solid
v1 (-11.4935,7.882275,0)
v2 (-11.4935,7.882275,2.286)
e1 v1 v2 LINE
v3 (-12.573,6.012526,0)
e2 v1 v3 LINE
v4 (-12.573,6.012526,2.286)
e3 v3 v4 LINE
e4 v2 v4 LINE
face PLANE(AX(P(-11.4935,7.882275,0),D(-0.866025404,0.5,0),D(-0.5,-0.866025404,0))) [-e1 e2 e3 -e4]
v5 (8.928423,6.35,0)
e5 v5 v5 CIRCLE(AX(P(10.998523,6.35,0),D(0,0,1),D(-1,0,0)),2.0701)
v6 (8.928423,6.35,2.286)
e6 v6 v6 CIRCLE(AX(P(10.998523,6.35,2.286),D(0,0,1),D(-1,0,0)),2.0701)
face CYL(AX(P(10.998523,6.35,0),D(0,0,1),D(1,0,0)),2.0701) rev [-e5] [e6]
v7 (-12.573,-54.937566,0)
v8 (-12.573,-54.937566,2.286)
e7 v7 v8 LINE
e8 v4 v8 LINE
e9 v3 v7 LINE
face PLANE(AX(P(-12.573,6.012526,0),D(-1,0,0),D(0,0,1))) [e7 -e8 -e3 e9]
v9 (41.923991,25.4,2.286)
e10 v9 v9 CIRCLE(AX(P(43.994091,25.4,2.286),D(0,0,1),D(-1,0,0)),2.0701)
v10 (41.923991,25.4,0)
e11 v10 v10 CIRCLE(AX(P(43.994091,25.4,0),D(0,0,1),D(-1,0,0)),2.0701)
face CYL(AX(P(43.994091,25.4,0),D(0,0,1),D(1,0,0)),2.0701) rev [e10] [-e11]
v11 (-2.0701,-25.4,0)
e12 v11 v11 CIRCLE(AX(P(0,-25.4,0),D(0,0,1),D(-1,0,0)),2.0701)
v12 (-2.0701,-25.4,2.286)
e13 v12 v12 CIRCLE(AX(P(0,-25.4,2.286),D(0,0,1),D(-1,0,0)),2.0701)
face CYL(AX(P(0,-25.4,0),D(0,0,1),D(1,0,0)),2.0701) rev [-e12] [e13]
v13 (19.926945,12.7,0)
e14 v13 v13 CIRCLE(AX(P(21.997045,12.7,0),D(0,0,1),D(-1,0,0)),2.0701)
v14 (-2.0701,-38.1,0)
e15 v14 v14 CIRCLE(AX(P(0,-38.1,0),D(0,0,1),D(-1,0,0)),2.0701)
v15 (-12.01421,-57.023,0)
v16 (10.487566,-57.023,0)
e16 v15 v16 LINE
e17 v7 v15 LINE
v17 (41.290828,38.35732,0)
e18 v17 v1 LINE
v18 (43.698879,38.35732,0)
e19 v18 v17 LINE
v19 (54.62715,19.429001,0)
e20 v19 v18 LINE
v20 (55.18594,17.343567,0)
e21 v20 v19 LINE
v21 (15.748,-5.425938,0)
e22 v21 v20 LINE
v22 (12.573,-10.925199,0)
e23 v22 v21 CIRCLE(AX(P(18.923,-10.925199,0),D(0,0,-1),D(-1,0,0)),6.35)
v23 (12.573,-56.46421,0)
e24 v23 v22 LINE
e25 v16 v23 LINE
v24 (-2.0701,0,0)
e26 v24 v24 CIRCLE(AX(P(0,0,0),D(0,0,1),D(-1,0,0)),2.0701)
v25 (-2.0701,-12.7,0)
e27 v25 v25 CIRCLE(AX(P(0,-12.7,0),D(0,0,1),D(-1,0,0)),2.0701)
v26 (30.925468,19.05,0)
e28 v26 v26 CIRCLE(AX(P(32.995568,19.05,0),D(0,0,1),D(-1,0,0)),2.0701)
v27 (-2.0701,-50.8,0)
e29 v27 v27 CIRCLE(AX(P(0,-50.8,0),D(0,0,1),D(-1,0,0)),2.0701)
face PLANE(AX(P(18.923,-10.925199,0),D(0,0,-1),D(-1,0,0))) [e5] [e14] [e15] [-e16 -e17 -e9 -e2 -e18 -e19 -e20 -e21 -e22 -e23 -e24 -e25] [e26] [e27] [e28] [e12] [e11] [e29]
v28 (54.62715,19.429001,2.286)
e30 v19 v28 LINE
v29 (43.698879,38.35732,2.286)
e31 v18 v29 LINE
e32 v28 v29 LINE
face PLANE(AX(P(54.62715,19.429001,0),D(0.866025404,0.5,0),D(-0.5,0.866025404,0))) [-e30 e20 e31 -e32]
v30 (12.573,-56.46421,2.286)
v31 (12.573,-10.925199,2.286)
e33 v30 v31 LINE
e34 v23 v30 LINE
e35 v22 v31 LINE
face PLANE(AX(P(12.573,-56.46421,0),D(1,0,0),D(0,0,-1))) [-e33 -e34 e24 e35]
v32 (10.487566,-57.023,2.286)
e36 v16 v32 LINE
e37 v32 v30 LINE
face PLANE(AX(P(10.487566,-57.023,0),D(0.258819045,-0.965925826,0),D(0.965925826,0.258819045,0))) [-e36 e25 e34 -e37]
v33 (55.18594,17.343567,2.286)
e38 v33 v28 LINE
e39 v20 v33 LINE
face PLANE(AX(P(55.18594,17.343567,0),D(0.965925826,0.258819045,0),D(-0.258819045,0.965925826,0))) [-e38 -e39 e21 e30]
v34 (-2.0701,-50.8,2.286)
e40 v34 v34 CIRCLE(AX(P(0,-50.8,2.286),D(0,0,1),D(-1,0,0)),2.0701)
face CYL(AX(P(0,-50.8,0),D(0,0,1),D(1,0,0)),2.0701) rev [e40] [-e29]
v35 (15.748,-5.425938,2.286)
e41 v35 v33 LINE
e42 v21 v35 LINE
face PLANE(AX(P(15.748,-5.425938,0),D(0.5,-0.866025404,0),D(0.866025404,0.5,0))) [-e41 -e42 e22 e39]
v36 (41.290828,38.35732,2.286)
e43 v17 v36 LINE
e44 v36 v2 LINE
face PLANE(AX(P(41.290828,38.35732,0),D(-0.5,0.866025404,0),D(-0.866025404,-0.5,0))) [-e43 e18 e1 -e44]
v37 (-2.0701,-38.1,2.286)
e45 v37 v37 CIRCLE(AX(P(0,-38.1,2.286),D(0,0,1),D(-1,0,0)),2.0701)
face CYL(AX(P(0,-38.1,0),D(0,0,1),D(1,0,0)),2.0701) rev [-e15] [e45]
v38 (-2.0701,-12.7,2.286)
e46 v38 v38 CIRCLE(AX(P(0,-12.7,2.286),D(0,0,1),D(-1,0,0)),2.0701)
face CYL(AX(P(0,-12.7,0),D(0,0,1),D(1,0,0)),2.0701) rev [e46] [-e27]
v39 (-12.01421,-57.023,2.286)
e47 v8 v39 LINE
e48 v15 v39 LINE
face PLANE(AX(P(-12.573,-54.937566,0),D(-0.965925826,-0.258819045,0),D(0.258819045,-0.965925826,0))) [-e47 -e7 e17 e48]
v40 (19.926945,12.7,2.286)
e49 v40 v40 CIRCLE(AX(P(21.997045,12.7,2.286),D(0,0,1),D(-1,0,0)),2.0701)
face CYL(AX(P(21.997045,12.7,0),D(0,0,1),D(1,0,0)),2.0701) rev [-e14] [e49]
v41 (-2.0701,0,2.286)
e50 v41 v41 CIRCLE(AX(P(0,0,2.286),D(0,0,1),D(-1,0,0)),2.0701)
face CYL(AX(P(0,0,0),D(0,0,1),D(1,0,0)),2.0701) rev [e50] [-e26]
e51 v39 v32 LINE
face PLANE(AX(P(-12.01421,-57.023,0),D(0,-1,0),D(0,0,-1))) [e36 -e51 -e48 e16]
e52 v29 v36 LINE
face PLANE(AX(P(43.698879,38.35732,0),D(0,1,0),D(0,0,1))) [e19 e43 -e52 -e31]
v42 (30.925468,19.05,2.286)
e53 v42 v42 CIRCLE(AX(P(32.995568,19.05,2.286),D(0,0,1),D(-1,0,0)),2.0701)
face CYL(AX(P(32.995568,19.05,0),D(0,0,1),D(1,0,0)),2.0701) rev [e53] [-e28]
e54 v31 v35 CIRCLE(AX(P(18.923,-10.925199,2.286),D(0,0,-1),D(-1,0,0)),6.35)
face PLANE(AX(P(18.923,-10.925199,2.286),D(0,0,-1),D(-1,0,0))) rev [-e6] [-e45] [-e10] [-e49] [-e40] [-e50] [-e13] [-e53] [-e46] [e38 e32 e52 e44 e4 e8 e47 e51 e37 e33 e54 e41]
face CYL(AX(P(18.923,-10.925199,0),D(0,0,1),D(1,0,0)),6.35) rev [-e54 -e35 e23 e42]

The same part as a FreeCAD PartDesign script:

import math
import FreeCAD as App
import Part
import Sketcher
Q = App.Units.Quantity

doc = App.newDocument("Part")
body = doc.addObject("PartDesign::Body", "Body")

sketch1 = body.newObject("Sketcher::SketchObject", "Sketch")
sketch1.AttachmentSupport = (doc.getObject("XY_Plane"), [""])
sketch1.MapMode = "FlatFace"
sketch1.AttachmentOffset = App.Placement(App.Vector(0, 0, 0.09 * 25.4), App.Rotation())
sketch1.addGeometry([
    Part.LineSegment(App.Vector(41.3, 38.4, 0), App.Vector(-11.5, 7.9, 0)),
    Part.LineSegment(App.Vector(-11.5, 7.9, 0), App.Vector(-12.6, 6, 0)),
    Part.LineSegment(App.Vector(-12.6, 6, 0), App.Vector(-12.6, -54.9, 0)),
    Part.LineSegment(App.Vector(-12.6, -54.9, 0), App.Vector(-12, -57, 0)),
    Part.LineSegment(App.Vector(-12, -57, 0), App.Vector(10.5, -57, 0)),
    Part.LineSegment(App.Vector(10.5, -57, 0), App.Vector(12.6, -56.5, 0)),
    Part.LineSegment(App.Vector(12.6, -56.5, 0), App.Vector(12.6, -10.9, 0)),
    Part.ArcOfCircle(Part.Circle(App.Vector(18.9, -10.9, 0), App.Vector(0, 0, 1), 6.3), math.radians(120), math.radians(180)),
    Part.LineSegment(App.Vector(15.7, -5.4, 0), App.Vector(55.2, 17.3, 0)),
    Part.LineSegment(App.Vector(55.2, 17.3, 0), App.Vector(54.6, 19.4, 0)),
    Part.LineSegment(App.Vector(54.6, 19.4, 0), App.Vector(43.7, 38.4, 0)),
    Part.LineSegment(App.Vector(43.7, 38.4, 0), App.Vector(41.3, 38.4, 0)),
    Part.Circle(App.Vector(0, -50.8, 0), App.Vector(0, 0, 1), 2.1),
    Part.Circle(App.Vector(0, -38.1, 0), App.Vector(0, 0, 1), 2.1),
    Part.Circle(App.Vector(0, -25.4, 0), App.Vector(0, 0, 1), 2.1),
    Part.Circle(App.Vector(0, -12.7, 0), App.Vector(0, 0, 1), 2.1),
    Part.Circle(App.Vector(0, 0, 0), App.Vector(0, 0, 1), 2.1),
    Part.Circle(App.Vector(11, 6.3, 0), App.Vector(0, 0, 1), 2.1),
    Part.Circle(App.Vector(22, 12.7, 0), App.Vector(0, 0, 1), 2.1),
    Part.Circle(App.Vector(33, 19.1, 0), App.Vector(0, 0, 1), 2.1),
    Part.Circle(App.Vector(44, 25.4, 0), App.Vector(0, 0, 1), 2.1),
], False)
sketch1.addConstraint([
    Sketcher.Constraint("Coincident", 0, 2, 1, 1),
    Sketcher.Constraint("Coincident", 1, 2, 2, 1),
    Sketcher.Constraint("Coincident", 2, 2, 3, 1),
    Sketcher.Constraint("Coincident", 3, 2, 4, 1),
    Sketcher.Constraint("Coincident", 4, 2, 5, 1),
    Sketcher.Constraint("Coincident", 5, 2, 6, 1),
    Sketcher.Constraint("Tangent", 6, 2, 7, 2),
    Sketcher.Constraint("Tangent", 7, 1, 8, 1),
    Sketcher.Constraint("Coincident", 8, 2, 9, 1),
    Sketcher.Constraint("Coincident", 9, 2, 10, 1),
    Sketcher.Constraint("Coincident", 10, 2, 11, 1),
    Sketcher.Constraint("Coincident", 11, 2, 0, 1),
    Sketcher.Constraint("Vertical", 2),
    Sketcher.Constraint("Horizontal", 4),
    Sketcher.Constraint("Vertical", 6),
    Sketcher.Constraint("Horizontal", 11),
    Sketcher.Constraint("Coincident", 16, 3, -1, 1),
    Sketcher.Constraint("Equal", 12, 13),
    Sketcher.Constraint("Equal", 13, 14),
    Sketcher.Constraint("Equal", 14, 15),
    Sketcher.Constraint("Equal", 15, 16),
    Sketcher.Constraint("Equal", 16, 17),
    Sketcher.Constraint("Equal", 17, 18),
    Sketcher.Constraint("Equal", 18, 19),
    Sketcher.Constraint("Equal", 19, 20),
    Sketcher.Constraint("PointOnObject", 12, 3, -2),
    Sketcher.Constraint("PointOnObject", 13, 3, -2),
    Sketcher.Constraint("PointOnObject", 14, 3, -2),
    Sketcher.Constraint("PointOnObject", 15, 3, -2),
    Sketcher.Constraint("Perpendicular", 3, 5),
    Sketcher.Constraint("Parallel", 0, 8),
    Sketcher.Constraint("Perpendicular", 5, 9),
    Sketcher.Constraint("Perpendicular", 8, 10),
    Sketcher.Constraint("Equal", 1, 3),
    Sketcher.Constraint("Equal", 3, 5),
    Sketcher.Constraint("Equal", 5, 9),
    Sketcher.Constraint("Radius", 7, Q("0.25 in")),
    Sketcher.Constraint("Diameter", 12, Q("0.163 in")),
    Sketcher.Constraint("DistanceY", 12, 3, -1, 1, Q("2 in")),
    Sketcher.Constraint("DistanceY", 14, 3, -1, 1, Q("1 in")),
    Sketcher.Constraint("DistanceY", -1, 1, 20, 3, Q("1 in")),
    Sketcher.Constraint("Angle", 0, Q("-150 deg")),
    Sketcher.Constraint("Angle", 1, Q("-120 deg")),
    Sketcher.Constraint("Angle", 3, Q("-75 deg")),
    Sketcher.Constraint("DistanceY", 13, 3, 15, 3, Q("1 in")),
    Sketcher.Constraint("DistanceY", 15, 3, 18, 3, Q("1 in")),
    Sketcher.Constraint("DistanceY", 13, 3, -1, 1, Q("1.5 in")),
    Sketcher.Constraint("DistanceY", 17, 3, 19, 3, Q("0.5 in")),
    Sketcher.Constraint("DistanceY", -1, 1, 17, 3, Q("0.25 in")),
    Sketcher.Constraint("DistanceX", -1, 1, 7, 1, Q("0.62 in")),
    Sketcher.Constraint("DistanceX", 2, 2, 7, 3, Q("1.24 in")),
    Sketcher.Constraint("Distance", 1, Q("0.085 in")),
    Sketcher.Constraint("DistanceY", 3, 2, -1, 1, Q("2.245 in")),
    Sketcher.Constraint("DistanceX", 11, 2, 11, 1, 2.408052),
    Sketcher.Constraint("DistanceY", 2, 2, 2, 1, 60.950092),
    Sketcher.Constraint("DistanceY", 6, 1, 6, 2, 45.539011),
    Sketcher.Constraint("DistanceY", -1, 1, 9, 2, 19.429001),
    Sketcher.Constraint("DistanceX", -1, 1, 20, 3, 43.994091),
    Sketcher.Constraint("DistanceX", 19, 3, 9, 2, 21.631582),
    Sketcher.Constraint("DistanceX", -1, 1, 17, 3, 10.998523),
    Sketcher.Constraint("DistanceX", -1, 1, 18, 3, 21.997045),
])
pad1 = body.newObject("PartDesign::Pad", "Pad")
pad1.Profile = sketch1
pad1.Length = Q("0.09 in")
pad1.Reversed = True

doc.recompute()
